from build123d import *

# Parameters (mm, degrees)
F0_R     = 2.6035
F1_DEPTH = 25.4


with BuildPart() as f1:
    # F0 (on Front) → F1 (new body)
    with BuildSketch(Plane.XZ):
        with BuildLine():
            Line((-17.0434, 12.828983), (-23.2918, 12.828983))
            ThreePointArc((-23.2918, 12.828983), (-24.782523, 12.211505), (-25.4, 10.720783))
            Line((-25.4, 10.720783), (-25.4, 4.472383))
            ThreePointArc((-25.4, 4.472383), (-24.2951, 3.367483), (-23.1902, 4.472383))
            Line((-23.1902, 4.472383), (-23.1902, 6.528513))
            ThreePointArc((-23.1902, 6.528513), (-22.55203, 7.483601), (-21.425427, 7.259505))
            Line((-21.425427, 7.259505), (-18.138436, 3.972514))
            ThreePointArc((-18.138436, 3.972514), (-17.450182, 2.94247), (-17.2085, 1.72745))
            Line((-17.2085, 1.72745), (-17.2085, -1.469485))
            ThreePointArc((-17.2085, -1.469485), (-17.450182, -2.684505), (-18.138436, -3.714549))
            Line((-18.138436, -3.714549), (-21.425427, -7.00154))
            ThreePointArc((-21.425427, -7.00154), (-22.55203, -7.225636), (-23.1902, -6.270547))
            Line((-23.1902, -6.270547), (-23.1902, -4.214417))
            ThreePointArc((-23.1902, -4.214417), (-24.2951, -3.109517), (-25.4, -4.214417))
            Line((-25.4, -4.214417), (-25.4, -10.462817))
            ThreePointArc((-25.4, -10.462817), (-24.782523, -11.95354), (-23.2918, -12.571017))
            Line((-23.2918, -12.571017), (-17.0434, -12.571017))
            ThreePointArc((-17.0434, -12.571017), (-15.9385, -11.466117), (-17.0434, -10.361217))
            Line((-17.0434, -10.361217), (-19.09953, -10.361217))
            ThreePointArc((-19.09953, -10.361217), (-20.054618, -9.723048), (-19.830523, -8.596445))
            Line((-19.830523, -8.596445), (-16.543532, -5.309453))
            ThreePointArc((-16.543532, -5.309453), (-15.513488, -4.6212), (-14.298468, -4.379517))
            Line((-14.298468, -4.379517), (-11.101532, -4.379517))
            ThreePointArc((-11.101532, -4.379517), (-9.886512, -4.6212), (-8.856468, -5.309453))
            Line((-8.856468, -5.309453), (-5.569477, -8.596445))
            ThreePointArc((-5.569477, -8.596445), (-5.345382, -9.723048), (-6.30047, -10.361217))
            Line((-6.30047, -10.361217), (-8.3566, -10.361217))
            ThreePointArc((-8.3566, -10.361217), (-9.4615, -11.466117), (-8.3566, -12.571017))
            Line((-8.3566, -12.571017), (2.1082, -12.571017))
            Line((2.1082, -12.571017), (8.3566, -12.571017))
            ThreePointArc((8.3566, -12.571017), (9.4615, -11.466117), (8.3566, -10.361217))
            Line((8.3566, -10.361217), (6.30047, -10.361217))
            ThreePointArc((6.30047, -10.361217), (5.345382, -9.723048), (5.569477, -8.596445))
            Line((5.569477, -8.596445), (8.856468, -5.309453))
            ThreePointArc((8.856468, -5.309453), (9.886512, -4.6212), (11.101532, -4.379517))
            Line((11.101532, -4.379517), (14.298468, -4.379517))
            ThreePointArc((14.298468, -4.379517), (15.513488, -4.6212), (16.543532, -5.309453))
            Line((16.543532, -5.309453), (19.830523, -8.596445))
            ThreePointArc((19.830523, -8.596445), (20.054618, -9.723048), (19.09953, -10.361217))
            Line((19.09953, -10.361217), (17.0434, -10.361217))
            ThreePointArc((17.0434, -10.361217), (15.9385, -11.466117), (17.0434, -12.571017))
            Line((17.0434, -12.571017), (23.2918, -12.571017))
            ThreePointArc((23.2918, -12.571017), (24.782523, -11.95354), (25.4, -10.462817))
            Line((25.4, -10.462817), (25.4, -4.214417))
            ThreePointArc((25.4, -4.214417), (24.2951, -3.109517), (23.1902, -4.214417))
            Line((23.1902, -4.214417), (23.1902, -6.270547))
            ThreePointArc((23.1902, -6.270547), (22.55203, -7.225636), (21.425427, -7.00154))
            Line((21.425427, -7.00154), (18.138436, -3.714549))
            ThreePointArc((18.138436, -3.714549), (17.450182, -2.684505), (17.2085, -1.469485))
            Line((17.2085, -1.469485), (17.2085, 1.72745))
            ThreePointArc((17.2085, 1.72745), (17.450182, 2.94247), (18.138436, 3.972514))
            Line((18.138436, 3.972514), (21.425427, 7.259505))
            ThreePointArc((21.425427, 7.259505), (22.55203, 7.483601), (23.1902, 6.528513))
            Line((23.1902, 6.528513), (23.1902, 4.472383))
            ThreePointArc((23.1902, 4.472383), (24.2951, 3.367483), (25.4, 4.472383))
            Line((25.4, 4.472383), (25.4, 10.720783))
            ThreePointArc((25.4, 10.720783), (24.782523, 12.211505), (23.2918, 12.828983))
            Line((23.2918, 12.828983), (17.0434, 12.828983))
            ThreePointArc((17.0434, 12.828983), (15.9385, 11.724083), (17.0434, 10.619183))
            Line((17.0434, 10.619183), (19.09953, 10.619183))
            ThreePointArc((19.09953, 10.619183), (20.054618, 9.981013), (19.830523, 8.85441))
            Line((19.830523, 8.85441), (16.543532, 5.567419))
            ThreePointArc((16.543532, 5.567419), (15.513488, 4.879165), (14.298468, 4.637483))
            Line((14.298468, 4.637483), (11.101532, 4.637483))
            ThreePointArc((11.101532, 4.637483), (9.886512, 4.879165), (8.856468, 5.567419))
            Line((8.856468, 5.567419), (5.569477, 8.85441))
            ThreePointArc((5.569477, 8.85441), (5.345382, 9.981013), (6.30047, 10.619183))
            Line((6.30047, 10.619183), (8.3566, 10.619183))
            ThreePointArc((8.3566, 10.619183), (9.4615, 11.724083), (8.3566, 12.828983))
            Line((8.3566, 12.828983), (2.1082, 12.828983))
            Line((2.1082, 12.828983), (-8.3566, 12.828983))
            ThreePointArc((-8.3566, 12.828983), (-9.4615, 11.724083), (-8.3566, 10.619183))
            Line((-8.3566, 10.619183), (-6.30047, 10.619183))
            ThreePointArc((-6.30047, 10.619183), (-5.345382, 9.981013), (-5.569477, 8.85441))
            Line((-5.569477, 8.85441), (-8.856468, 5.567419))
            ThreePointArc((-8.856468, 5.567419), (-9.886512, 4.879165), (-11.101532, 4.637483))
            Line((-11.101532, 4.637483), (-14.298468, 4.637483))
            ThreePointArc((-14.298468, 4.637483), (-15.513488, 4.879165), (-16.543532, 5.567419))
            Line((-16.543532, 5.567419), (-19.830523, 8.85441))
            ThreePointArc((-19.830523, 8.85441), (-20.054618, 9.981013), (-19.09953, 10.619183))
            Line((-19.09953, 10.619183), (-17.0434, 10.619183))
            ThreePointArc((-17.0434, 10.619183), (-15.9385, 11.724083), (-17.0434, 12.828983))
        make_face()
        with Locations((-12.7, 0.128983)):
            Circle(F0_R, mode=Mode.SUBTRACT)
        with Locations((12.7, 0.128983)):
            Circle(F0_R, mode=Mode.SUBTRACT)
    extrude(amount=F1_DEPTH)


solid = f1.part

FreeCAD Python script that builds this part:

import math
import FreeCAD as App
import Part
import Sketcher
from FreeCAD import Vector
Q = App.Units.Quantity

doc = App.newDocument("Part")
body = doc.addObject("PartDesign::Body", "Body")

# Sketch on XZ plane
sketch1 = body.newObject("Sketcher::SketchObject", "Sketch")
sketch1.AttachmentSupport = (doc.getObject("XZ_Plane"), [""])
sketch1.MapMode = "FlatFace"
sketch1.addGeometry([
    Part.LineSegment(Vector(-17.0434, 12.828983, 0), Vector(-23.2918, 12.828983, 0)),  # 0
    Part.ArcOfCircle(Part.Circle(Vector(-23.2918, 10.720783, 0), Vector(0, 0, 1), 2.1082), math.radians(90.000001), math.radians(179.999999)),  # 1
    Part.LineSegment(Vector(-25.4, 10.720783, 0), Vector(-25.4, 4.472383, 0)),  # 2
    Part.ArcOfCircle(Part.Circle(Vector(-24.2951, 4.472383, 0), Vector(0, 0, 1), 1.1049), math.radians(180), math.radians(360)),  # 3
    Part.LineSegment(Vector(-23.1902, 4.472383, 0), Vector(-23.1902, 6.528513, 0)),  # 4
    Part.ArcOfCircle(Part.Circle(Vector(-22.15642, 6.528513, 0), Vector(0, 0, 1), 1.03378), math.radians(44.999964), math.radians(179.999986)),  # 5
    Part.LineSegment(Vector(-21.425427, 7.259505, 0), Vector(-18.138436, 3.972514, 0)),  # 6
    Part.ArcOfCircle(Part.Circle(Vector(-20.383494, 1.727453, 0), Vector(0, 0, 1), 3.174994), math.radians(-0.000045), math.radians(45.000047)),  # 7
    Part.LineSegment(Vector(-17.2085, 1.72745, 0), Vector(-17.2085, -1.469485, 0)),  # 8
    Part.ArcOfCircle(Part.Circle(Vector(-20.383494, -1.469488, 0), Vector(0, 0, 1), 3.174994), math.radians(-45.000047), math.radians(0.000045)),  # 9
    Part.LineSegment(Vector(-18.138436, -3.714549, 0), Vector(-21.425427, -7.00154, 0)),  # 10
    Part.ArcOfCircle(Part.Circle(Vector(-22.15642, -6.270548, 0), Vector(0, 0, 1), 1.03378), math.radians(179.999959), math.radians(315.000036)),  # 11
    Part.LineSegment(Vector(-23.1902, -6.270547, 0), Vector(-23.1902, -4.214417, 0)),  # 12
    Part.ArcOfCircle(Part.Circle(Vector(-24.2951, -4.214417, 0), Vector(0, 0, 1), 1.1049), math.radians(0), math.radians(180)),  # 13
    Part.LineSegment(Vector(-25.4, -4.214417, 0), Vector(-25.4, -10.462817, 0)),  # 14
    Part.ArcOfCircle(Part.Circle(Vector(-23.291802, -10.462819, 0), Vector(0, 0, 1), 2.108198), math.radians(179.999955), math.radians(270.000045)),  # 15
    Part.LineSegment(Vector(-23.2918, -12.571017, 0), Vector(-17.0434, -12.571017, 0)),  # 16
    Part.ArcOfCircle(Part.Circle(Vector(-17.0434, -11.466117, 0), Vector(0, 0, 1), 1.1049), math.radians(-90), math.radians(90)),  # 17
    Part.LineSegment(Vector(-17.0434, -10.361217, 0), Vector(-19.09953, -10.361217, 0)),  # 18
    Part.ArcOfCircle(Part.Circle(Vector(-19.09953, -9.327437, 0), Vector(0, 0, 1), 1.03378), math.radians(135.000011), math.radians(270.000017)),  # 19
    Part.LineSegment(Vector(-19.830523, -8.596445, 0), Vector(-16.543532, -5.309453, 0)),  # 20
    Part.ArcOfCircle(Part.Circle(Vector(-14.298466, -7.554522, 0), Vector(0, 0, 1), 3.175005), math.radians(90.000039), math.radians(134.999963)),  # 21
    Part.LineSegment(Vector(-14.298468, -4.379517, 0), Vector(-11.101532, -4.379517, 0)),  # 22
    Part.ArcOfCircle(Part.Circle(Vector(-11.101534, -7.554522, 0), Vector(0, 0, 1), 3.175005), math.radians(45.000037), math.radians(89.999961)),  # 23
    Part.LineSegment(Vector(-8.856468, -5.309453, 0), Vector(-5.569477, -8.596445, 0)),  # 24
    Part.ArcOfCircle(Part.Circle(Vector(-6.30047, -9.327437, 0), Vector(0, 0, 1), 1.03378), math.radians(-90.000017), math.radians(44.999989)),  # 25
    Part.LineSegment(Vector(-6.30047, -10.361217, 0), Vector(-8.3566, -10.361217, 0)),  # 26
    Part.ArcOfCircle(Part.Circle(Vector(-8.3566, -11.466117, 0), Vector(0, 0, 1), 1.1049), math.radians(90), math.radians(270)),  # 27
    Part.LineSegment(Vector(-8.3566, -12.571017, 0), Vector(8.3566, -12.571017, 0)),  # 28
    Part.ArcOfCircle(Part.Circle(Vector(8.3566, -11.466117, 0), Vector(0, 0, 1), 1.1049), math.radians(-90), math.radians(90)),  # 29
    Part.LineSegment(Vector(8.3566, -10.361217, 0), Vector(6.30047, -10.361217, 0)),  # 30
    Part.ArcOfCircle(Part.Circle(Vector(6.30047, -9.327437, 0), Vector(0, 0, 1), 1.03378), math.radians(135.000011), math.radians(270.000017)),  # 31
    Part.LineSegment(Vector(5.569477, -8.596445, 0), Vector(8.856468, -5.309453, 0)),  # 32
    Part.ArcOfCircle(Part.Circle(Vector(11.101534, -7.554522, 0), Vector(0, 0, 1), 3.175005), math.radians(90.000039), math.radians(134.999963)),  # 33
    Part.LineSegment(Vector(11.101532, -4.379517, 0), Vector(14.298468, -4.379517, 0)),  # 34
    Part.ArcOfCircle(Part.Circle(Vector(14.298466, -7.554522, 0), Vector(0, 0, 1), 3.175005), math.radians(45.000037), math.radians(89.999961)),  # 35
    Part.LineSegment(Vector(16.543532, -5.309453, 0), Vector(19.830523, -8.596445, 0)),  # 36
    Part.ArcOfCircle(Part.Circle(Vector(19.09953, -9.327437, 0), Vector(0, 0, 1), 1.03378), math.radians(-90.000017), math.radians(44.999989)),  # 37
    Part.LineSegment(Vector(19.09953, -10.361217, 0), Vector(17.0434, -10.361217, 0)),  # 38
    Part.ArcOfCircle(Part.Circle(Vector(17.0434, -11.466117, 0), Vector(0, 0, 1), 1.1049), math.radians(90), math.radians(270)),  # 39
    Part.LineSegment(Vector(17.0434, -12.571017, 0), Vector(23.2918, -12.571017, 0)),  # 40
    Part.ArcOfCircle(Part.Circle(Vector(23.291802, -10.462819, 0), Vector(0, 0, 1), 2.108198), math.radians(-90.000045), math.radians(0.000045)),  # 41
    Part.LineSegment(Vector(25.4, -10.462817, 0), Vector(25.4, -4.214417, 0)),  # 42
    Part.ArcOfCircle(Part.Circle(Vector(24.2951, -4.214417, 0), Vector(0, 0, 1), 1.1049), math.radians(0), math.radians(180)),  # 43
    Part.LineSegment(Vector(23.1902, -4.214417, 0), Vector(23.1902, -6.270547, 0)),  # 44
    Part.ArcOfCircle(Part.Circle(Vector(22.15642, -6.270548, 0), Vector(0, 0, 1), 1.03378), math.radians(-135.000036), math.radians(0.000041)),  # 45
    Part.LineSegment(Vector(21.425427, -7.00154, 0), Vector(18.138436, -3.714549, 0)),  # 46
    Part.ArcOfCircle(Part.Circle(Vector(20.383494, -1.469488, 0), Vector(0, 0, 1), 3.174994), math.radians(179.999955), math.radians(225.000047)),  # 47
    Part.LineSegment(Vector(17.2085, -1.469485, 0), Vector(17.2085, 1.72745, 0)),  # 48
    Part.ArcOfCircle(Part.Circle(Vector(20.383494, 1.727453, 0), Vector(0, 0, 1), 3.174994), math.radians(134.999953), math.radians(180.000045)),  # 49
    Part.LineSegment(Vector(18.138436, 3.972514, 0), Vector(21.425427, 7.259505, 0)),  # 50
    Part.ArcOfCircle(Part.Circle(Vector(22.15642, 6.528513, 0), Vector(0, 0, 1), 1.03378), math.radians(0.000014), math.radians(135.000036)),  # 51
    Part.LineSegment(Vector(23.1902, 6.528513, 0), Vector(23.1902, 4.472383, 0)),  # 52
    Part.ArcOfCircle(Part.Circle(Vector(24.2951, 4.472383, 0), Vector(0, 0, 1), 1.1049), math.radians(180), math.radians(360)),  # 53
    Part.LineSegment(Vector(25.4, 4.472383, 0), Vector(25.4, 10.720783, 0)),  # 54
    Part.ArcOfCircle(Part.Circle(Vector(23.2918, 10.720783, 0), Vector(0, 0, 1), 2.1082), math.radians(0.000001), math.radians(89.999999)),  # 55
    Part.LineSegment(Vector(23.2918, 12.828983, 0), Vector(17.0434, 12.828983, 0)),  # 56
    Part.ArcOfCircle(Part.Circle(Vector(17.0434, 11.724083, 0), Vector(0, 0, 1), 1.1049), math.radians(90), math.radians(270)),  # 57
    Part.LineSegment(Vector(17.0434, 10.619183, 0), Vector(19.09953, 10.619183, 0)),  # 58
    Part.ArcOfCircle(Part.Circle(Vector(19.099529, 9.585403, 0), Vector(0, 0, 1), 1.03378), math.radians(-44.999959), math.radians(89.999964)),  # 59
    Part.LineSegment(Vector(19.830523, 8.85441, 0), Vector(16.543532, 5.567419, 0)),  # 60
    Part.ArcOfCircle(Part.Circle(Vector(14.298471, 7.812477, 0), Vector(0, 0, 1), 3.174994), math.radians(-90.000045), math.radians(-44.999953)),  # 61
    Part.LineSegment(Vector(14.298468, 4.637483, 0), Vector(11.101532, 4.637483, 0)),  # 62
    Part.ArcOfCircle(Part.Circle(Vector(11.101529, 7.812477, 0), Vector(0, 0, 1), 3.174994), math.radians(-135.000047), math.radians(-89.999955)),  # 63
    Part.LineSegment(Vector(8.856468, 5.567419, 0), Vector(5.569477, 8.85441, 0)),  # 64
    Part.ArcOfCircle(Part.Circle(Vector(6.300471, 9.585403, 0), Vector(0, 0, 1), 1.03378), math.radians(90.000036), math.radians(224.999959)),  # 65
    Part.LineSegment(Vector(6.30047, 10.619183, 0), Vector(8.3566, 10.619183, 0)),  # 66
    Part.ArcOfCircle(Part.Circle(Vector(8.3566, 11.724083, 0), Vector(0, 0, 1), 1.1049), math.radians(-90), math.radians(90)),  # 67
    Part.LineSegment(Vector(8.3566, 12.828983, 0), Vector(-8.3566, 12.828983, 0)),  # 68
    Part.ArcOfCircle(Part.Circle(Vector(-8.3566, 11.724083, 0), Vector(0, 0, 1), 1.1049), math.radians(90), math.radians(270)),  # 69
    Part.LineSegment(Vector(-8.3566, 10.619183, 0), Vector(-6.30047, 10.619183, 0)),  # 70
    Part.ArcOfCircle(Part.Circle(Vector(-6.300471, 9.585403, 0), Vector(0, 0, 1), 1.03378), math.radians(-44.999959), math.radians(89.999964)),  # 71
    Part.LineSegment(Vector(-5.569477, 8.85441, 0), Vector(-8.856468, 5.567419, 0)),  # 72
    Part.ArcOfCircle(Part.Circle(Vector(-11.101529, 7.812477, 0), Vector(0, 0, 1), 3.174994), math.radians(-90.000045), math.radians(-44.999953)),  # 73
    Part.LineSegment(Vector(-11.101532, 4.637483, 0), Vector(-14.298468, 4.637483, 0)),  # 74
    Part.ArcOfCircle(Part.Circle(Vector(-14.298471, 7.812477, 0), Vector(0, 0, 1), 3.174994), math.radians(-135.000047), math.radians(-89.999955)),  # 75
    Part.LineSegment(Vector(-16.543532, 5.567419, 0), Vector(-19.830523, 8.85441, 0)),  # 76
    Part.ArcOfCircle(Part.Circle(Vector(-19.099529, 9.585403, 0), Vector(0, 0, 1), 1.03378), math.radians(90.000036), math.radians(224.999959)),  # 77
    Part.LineSegment(Vector(-19.09953, 10.619183, 0), Vector(-17.0434, 10.619183, 0)),  # 78
    Part.ArcOfCircle(Part.Circle(Vector(-17.0434, 11.724083, 0), Vector(0, 0, 1), 1.1049), math.radians(-90), math.radians(90)),  # 79
    Part.Circle(Vector(-12.7, 0.128983, 0), Vector(0, 0, 1), 2.6035),  # 80
    Part.Circle(Vector(12.7, 0.128983, 0), Vector(0, 0, 1), 2.6035),  # 81
], False)
sketch1.addConstraint([
    Sketcher.Constraint("Tangent", 0, 2, 1, 1),
    Sketcher.Constraint("Tangent", 1, 2, 2, 1),
    Sketcher.Constraint("Tangent", 2, 2, 3, 1),
    Sketcher.Constraint("Tangent", 3, 2, 4, 1),
    Sketcher.Constraint("Tangent", 4, 2, 5, 2),
    Sketcher.Constraint("Tangent", 5, 1, 6, 1),
    Sketcher.Constraint("Tangent", 6, 2, 7, 2),
    Sketcher.Constraint("Tangent", 7, 1, 8, 1),
    Sketcher.Constraint("Tangent", 8, 2, 9, 2),
    Sketcher.Constraint("Tangent", 9, 1, 10, 1),
    Sketcher.Constraint("Tangent", 10, 2, 11, 2),
    Sketcher.Constraint("Tangent", 11, 1, 12, 1),
    Sketcher.Constraint("Tangent", 12, 2, 13, 1),
    Sketcher.Constraint("Tangent", 13, 2, 14, 1),
    Sketcher.Constraint("Tangent", 14, 2, 15, 1),
    Sketcher.Constraint("Tangent", 15, 2, 16, 1),
    Sketcher.Constraint("Tangent", 16, 2, 17, 1),
    Sketcher.Constraint("Tangent", 17, 2, 18, 1),
    Sketcher.Constraint("Tangent", 18, 2, 19, 2),
    Sketcher.Constraint("Tangent", 19, 1, 20, 1),
    Sketcher.Constraint("Tangent", 20, 2, 21, 2),
    Sketcher.Constraint("Tangent", 21, 1, 22, 1),
    Sketcher.Constraint("Tangent", 22, 2, 23, 2),
    Sketcher.Constraint("Tangent", 23, 1, 24, 1),
    Sketcher.Constraint("Tangent", 24, 2, 25, 2),
    Sketcher.Constraint("Tangent", 25, 1, 26, 1),
    Sketcher.Constraint("Tangent", 26, 2, 27, 1),
    Sketcher.Constraint("Tangent", 27, 2, 28, 1),
    Sketcher.Constraint("Tangent", 28, 2, 29, 1),
    Sketcher.Constraint("Tangent", 29, 2, 30, 1),
    Sketcher.Constraint("Tangent", 30, 2, 31, 2),
    Sketcher.Constraint("Tangent", 31, 1, 32, 1),
    Sketcher.Constraint("Tangent", 32, 2, 33, 2),
    Sketcher.Constraint("Tangent", 33, 1, 34, 1),
    Sketcher.Constraint("Tangent", 34, 2, 35, 2),
    Sketcher.Constraint("Tangent", 35, 1, 36, 1),
    Sketcher.Constraint("Tangent", 36, 2, 37, 2),
    Sketcher.Constraint("Tangent", 37, 1, 38, 1),
    Sketcher.Constraint("Tangent", 38, 2, 39, 1),
    Sketcher.Constraint("Tangent", 39, 2, 40, 1),
    Sketcher.Constraint("Tangent", 40, 2, 41, 1),
    Sketcher.Constraint("Tangent", 41, 2, 42, 1),
    Sketcher.Constraint("Tangent", 42, 2, 43, 1),
    Sketcher.Constraint("Tangent", 43, 2, 44, 1),
    Sketcher.Constraint("Tangent", 44, 2, 45, 2),
    Sketcher.Constraint("Tangent", 45, 1, 46, 1),
    Sketcher.Constraint("Tangent", 46, 2, 47, 2),
    Sketcher.Constraint("Tangent", 47, 1, 48, 1),
    Sketcher.Constraint("Tangent", 48, 2, 49, 2),
    Sketcher.Constraint("Tangent", 49, 1, 50, 1),
    Sketcher.Constraint("Tangent", 50, 2, 51, 2),
    Sketcher.Constraint("Tangent", 51, 1, 52, 1),
    Sketcher.Constraint("Tangent", 52, 2, 53, 1),
    Sketcher.Constraint("Tangent", 53, 2, 54, 1),
    Sketcher.Constraint("Tangent", 54, 2, 55, 1),
    Sketcher.Constraint("Tangent", 55, 2, 56, 1),
    Sketcher.Constraint("Tangent", 56, 2, 57, 1),
    Sketcher.Constraint("Tangent", 57, 2, 58, 1),
    Sketcher.Constraint("Tangent", 58, 2, 59, 2),
    Sketcher.Constraint("Tangent", 59, 1, 60, 1),
    Sketcher.Constraint("Tangent", 60, 2, 61, 2),
    Sketcher.Constraint("Tangent", 61, 1, 62, 1),
    Sketcher.Constraint("Tangent", 62, 2, 63, 2),
    Sketcher.Constraint("Tangent", 63, 1, 64, 1),
    Sketcher.Constraint("Tangent", 64, 2, 65, 2),
    Sketcher.Constraint("Tangent", 65, 1, 66, 1),
    Sketcher.Constraint("Tangent", 66, 2, 67, 1),
    Sketcher.Constraint("Tangent", 67, 2, 68, 1),
    Sketcher.Constraint("Tangent", 68, 2, 69, 1),
    Sketcher.Constraint("Tangent", 69, 2, 70, 1),
    Sketcher.Constraint("Tangent", 70, 2, 71, 2),
    Sketcher.Constraint("Tangent", 71, 1, 72, 1),
    Sketcher.Constraint("Tangent", 72, 2, 73, 2),
    Sketcher.Constraint("Tangent", 73, 1, 74, 1),
    Sketcher.Constraint("Tangent", 74, 2, 75, 2),
    Sketcher.Constraint("Tangent", 75, 1, 76, 1),
    Sketcher.Constraint("Tangent", 76, 2, 77, 2),
    Sketcher.Constraint("Tangent", 77, 1, 78, 1),
    Sketcher.Constraint("Tangent", 78, 2, 79, 1),
    Sketcher.Constraint("Tangent", 79, 2, 0, 1),
    Sketcher.Constraint("Horizontal", 0),
    Sketcher.Constraint("Vertical", 2),
    Sketcher.Constraint("Vertical", 4),
    Sketcher.Constraint("Vertical", 8),
    Sketcher.Constraint("Vertical", 12),
    Sketcher.Constraint("Vertical", 14),
    Sketcher.Constraint("Horizontal", 16),
    Sketcher.Constraint("Horizontal", 18),
    Sketcher.Constraint("Horizontal", 22),
    Sketcher.Constraint("Horizontal", 26),
    Sketcher.Constraint("Horizontal", 28),
    Sketcher.Constraint("Horizontal", 30),
    Sketcher.Constraint("Horizontal", 34),
    Sketcher.Constraint("Horizontal", 38),
    Sketcher.Constraint("Horizontal", 40),
    Sketcher.Constraint("Vertical", 42),
    Sketcher.Constraint("Vertical", 44),
    Sketcher.Constraint("Vertical", 48),
    Sketcher.Constraint("Vertical", 52),
    Sketcher.Constraint("Vertical", 54),
    Sketcher.Constraint("Horizontal", 56),
    Sketcher.Constraint("Horizontal", 58),
    Sketcher.Constraint("Horizontal", 62),
    Sketcher.Constraint("Horizontal", 66),
    Sketcher.Constraint("Horizontal", 68),
    Sketcher.Constraint("Horizontal", 70),
    Sketcher.Constraint("Horizontal", 74),
    Sketcher.Constraint("Horizontal", 78),
    Sketcher.Constraint("Equal", 7, 9),
    Sketcher.Constraint("Equal", 5, 11),
    Sketcher.Constraint("Equal", 3, 13),
    Sketcher.Constraint("Equal", 1, 15),
    Sketcher.Constraint("Equal", 13, 17),
    Sketcher.Constraint("Equal", 11, 19),
    Sketcher.Constraint("Equal", 21, 23),
    Sketcher.Constraint("Equal", 19, 25),
    Sketcher.Constraint("Equal", 17, 27),
    Sketcher.Constraint("Equal", 27, 29),
    Sketcher.Constraint("Equal", 25, 31),
    Sketcher.Constraint("Equal", 23, 33),
    Sketcher.Constraint("Equal", 33, 35),
    Sketcher.Constraint("Equal", 31, 37),
    Sketcher.Constraint("Equal", 29, 39),
    Sketcher.Constraint("Equal", 15, 41),
    Sketcher.Constraint("Equal", 39, 43),
    Sketcher.Constraint("Equal", 37, 45),
    Sketcher.Constraint("Equal", 9, 47),
    Sketcher.Constraint("Equal", 47, 49),
    Sketcher.Constraint("Equal", 45, 51),
    Sketcher.Constraint("Equal", 43, 53),
    Sketcher.Constraint("Equal", 41, 55),
    Sketcher.Constraint("Equal", 53, 57),
    Sketcher.Constraint("Equal", 51, 59),
    Sketcher.Constraint("Equal", 49, 61),
    Sketcher.Constraint("Equal", 61, 63),
    Sketcher.Constraint("Equal", 59, 65),
    Sketcher.Constraint("Equal", 57, 67),
    Sketcher.Constraint("Equal", 67, 69),
    Sketcher.Constraint("Equal", 65, 71),
    Sketcher.Constraint("Equal", 63, 73),
    Sketcher.Constraint("Equal", 73, 75),
    Sketcher.Constraint("Equal", 71, 77),
    Sketcher.Constraint("Equal", 69, 79),
    Sketcher.Constraint("Equal", 80, 81),
    Sketcher.Constraint("Symmetric", 23, 3, 33, 3, -2),
    Sketcher.Constraint("Symmetric", 19, 3, 37, 3, -2),
    Sketcher.Constraint("Symmetric", 13, 3, 43, 3, -2),
    Sketcher.Constraint("Symmetric", 9, 3, 47, 3, -2),
    Sketcher.Constraint("Symmetric", 5, 3, 51, 3, -2),
    Sketcher.Constraint("Symmetric", 63, 3, 73, 3, -2),
    Sketcher.Constraint("Symmetric", 59, 3, 77, 3, -2),
    Sketcher.Constraint("Symmetric", 80, 3, 81, 3, -2),
    Sketcher.Constraint("Perpendicular", 6, 10),
    Sketcher.Constraint("Parallel", 10, 20),
    Sketcher.Constraint("Perpendicular", 20, 24),
    Sketcher.Constraint("Perpendicular", 24, 32),
    Sketcher.Constraint("Perpendicular", 32, 36),
    Sketcher.Constraint("Parallel", 36, 46),
    Sketcher.Constraint("Perpendicular", 46, 50),
    Sketcher.Constraint("Parallel", 50, 60),
    Sketcher.Constraint("Perpendicular", 60, 64),
    Sketcher.Constraint("Perpendicular", 64, 72),
    Sketcher.Constraint("Perpendicular", 72, 76),
    Sketcher.Constraint("Horizontal", 19, 3, 25, 3),
    Sketcher.Constraint("Horizontal", 11, 3, 45, 3),
    Sketcher.Constraint("Horizontal", 3, 3, 53, 3),
    Sketcher.Constraint("Horizontal", 59, 3, 65, 3),
    Sketcher.Constraint("Vertical", 5, 3, 11, 3),
    Sketcher.Constraint("Vertical", 39, 3, 57, 3),
    Sketcher.Constraint("Vertical", 37, 3, 59, 3),
    Sketcher.Constraint("Vertical", 31, 3, 65, 3),
    Sketcher.Constraint("Vertical", 29, 3, 67, 3),
    Sketcher.Constraint("Vertical", 27, 3, 69, 3),
    Sketcher.Constraint("Vertical", 17, 3, 79, 3),
    Sketcher.Constraint("Vertical", 35, 1, 60, 2),
    Sketcher.Constraint("Vertical", 34, 2, 61, 1),
    Sketcher.Constraint("Equal", 18, 26),
    Sketcher.Constraint("Equal", 26, 30),
    Sketcher.Constraint("Equal", 30, 38),
    Sketcher.Constraint("Equal", 56, 2),
    Sketcher.Constraint("Equal", 78, 4),
    Sketcher.Constraint("Equal", 74, 8),
    Sketcher.Constraint("Equal", 4, 12),
    Sketcher.Constraint("Equal", 2, 14),
    Sketcher.Constraint("Equal", 10, 20),
    Sketcher.Constraint("Diameter", 80, Q("0.205 in")),
    Sketcher.Constraint("DistanceX", 1, 2, -1, 1, Q("1 in")),
    Sketcher.Constraint("Radius", 1, Q("0.083 in")),
    Sketcher.Constraint("Radius", 21, Q("0.1250002 in")),
    Sketcher.Constraint("DistanceX", 80, 3, -1, 1, Q("0.5 in")),
    Sketcher.Constraint("Radius", 3, Q("0.0435 in")),
    Sketcher.Constraint("Radius", 5, Q("0.0407 in")),
    Sketcher.Constraint("DistanceX", 0, 2, 0, 1, Q("0.246 in")),
    Sketcher.Constraint("DistanceX", 28, 1, 28, 2, Q("0.658 in")),
    Sketcher.Constraint("DistanceX", 7, 1, -1, 1, Q("0.6775 in")),
    Sketcher.Constraint("DistanceX", 18, 2, 18, 1, Q("2.05613 mm")),
    Sketcher.Constraint("DistanceY", 15, 3, -1, 1, Q("10.462819 mm")),
    Sketcher.Constraint("DistanceY", -1, 1, 80, 3, Q("0.128983 mm")),
])
pad1 = body.newObject("PartDesign::Pad", "Pad")
pad1.Profile = sketch1
pad1.Length = Q("1 in")

doc.recompute()
